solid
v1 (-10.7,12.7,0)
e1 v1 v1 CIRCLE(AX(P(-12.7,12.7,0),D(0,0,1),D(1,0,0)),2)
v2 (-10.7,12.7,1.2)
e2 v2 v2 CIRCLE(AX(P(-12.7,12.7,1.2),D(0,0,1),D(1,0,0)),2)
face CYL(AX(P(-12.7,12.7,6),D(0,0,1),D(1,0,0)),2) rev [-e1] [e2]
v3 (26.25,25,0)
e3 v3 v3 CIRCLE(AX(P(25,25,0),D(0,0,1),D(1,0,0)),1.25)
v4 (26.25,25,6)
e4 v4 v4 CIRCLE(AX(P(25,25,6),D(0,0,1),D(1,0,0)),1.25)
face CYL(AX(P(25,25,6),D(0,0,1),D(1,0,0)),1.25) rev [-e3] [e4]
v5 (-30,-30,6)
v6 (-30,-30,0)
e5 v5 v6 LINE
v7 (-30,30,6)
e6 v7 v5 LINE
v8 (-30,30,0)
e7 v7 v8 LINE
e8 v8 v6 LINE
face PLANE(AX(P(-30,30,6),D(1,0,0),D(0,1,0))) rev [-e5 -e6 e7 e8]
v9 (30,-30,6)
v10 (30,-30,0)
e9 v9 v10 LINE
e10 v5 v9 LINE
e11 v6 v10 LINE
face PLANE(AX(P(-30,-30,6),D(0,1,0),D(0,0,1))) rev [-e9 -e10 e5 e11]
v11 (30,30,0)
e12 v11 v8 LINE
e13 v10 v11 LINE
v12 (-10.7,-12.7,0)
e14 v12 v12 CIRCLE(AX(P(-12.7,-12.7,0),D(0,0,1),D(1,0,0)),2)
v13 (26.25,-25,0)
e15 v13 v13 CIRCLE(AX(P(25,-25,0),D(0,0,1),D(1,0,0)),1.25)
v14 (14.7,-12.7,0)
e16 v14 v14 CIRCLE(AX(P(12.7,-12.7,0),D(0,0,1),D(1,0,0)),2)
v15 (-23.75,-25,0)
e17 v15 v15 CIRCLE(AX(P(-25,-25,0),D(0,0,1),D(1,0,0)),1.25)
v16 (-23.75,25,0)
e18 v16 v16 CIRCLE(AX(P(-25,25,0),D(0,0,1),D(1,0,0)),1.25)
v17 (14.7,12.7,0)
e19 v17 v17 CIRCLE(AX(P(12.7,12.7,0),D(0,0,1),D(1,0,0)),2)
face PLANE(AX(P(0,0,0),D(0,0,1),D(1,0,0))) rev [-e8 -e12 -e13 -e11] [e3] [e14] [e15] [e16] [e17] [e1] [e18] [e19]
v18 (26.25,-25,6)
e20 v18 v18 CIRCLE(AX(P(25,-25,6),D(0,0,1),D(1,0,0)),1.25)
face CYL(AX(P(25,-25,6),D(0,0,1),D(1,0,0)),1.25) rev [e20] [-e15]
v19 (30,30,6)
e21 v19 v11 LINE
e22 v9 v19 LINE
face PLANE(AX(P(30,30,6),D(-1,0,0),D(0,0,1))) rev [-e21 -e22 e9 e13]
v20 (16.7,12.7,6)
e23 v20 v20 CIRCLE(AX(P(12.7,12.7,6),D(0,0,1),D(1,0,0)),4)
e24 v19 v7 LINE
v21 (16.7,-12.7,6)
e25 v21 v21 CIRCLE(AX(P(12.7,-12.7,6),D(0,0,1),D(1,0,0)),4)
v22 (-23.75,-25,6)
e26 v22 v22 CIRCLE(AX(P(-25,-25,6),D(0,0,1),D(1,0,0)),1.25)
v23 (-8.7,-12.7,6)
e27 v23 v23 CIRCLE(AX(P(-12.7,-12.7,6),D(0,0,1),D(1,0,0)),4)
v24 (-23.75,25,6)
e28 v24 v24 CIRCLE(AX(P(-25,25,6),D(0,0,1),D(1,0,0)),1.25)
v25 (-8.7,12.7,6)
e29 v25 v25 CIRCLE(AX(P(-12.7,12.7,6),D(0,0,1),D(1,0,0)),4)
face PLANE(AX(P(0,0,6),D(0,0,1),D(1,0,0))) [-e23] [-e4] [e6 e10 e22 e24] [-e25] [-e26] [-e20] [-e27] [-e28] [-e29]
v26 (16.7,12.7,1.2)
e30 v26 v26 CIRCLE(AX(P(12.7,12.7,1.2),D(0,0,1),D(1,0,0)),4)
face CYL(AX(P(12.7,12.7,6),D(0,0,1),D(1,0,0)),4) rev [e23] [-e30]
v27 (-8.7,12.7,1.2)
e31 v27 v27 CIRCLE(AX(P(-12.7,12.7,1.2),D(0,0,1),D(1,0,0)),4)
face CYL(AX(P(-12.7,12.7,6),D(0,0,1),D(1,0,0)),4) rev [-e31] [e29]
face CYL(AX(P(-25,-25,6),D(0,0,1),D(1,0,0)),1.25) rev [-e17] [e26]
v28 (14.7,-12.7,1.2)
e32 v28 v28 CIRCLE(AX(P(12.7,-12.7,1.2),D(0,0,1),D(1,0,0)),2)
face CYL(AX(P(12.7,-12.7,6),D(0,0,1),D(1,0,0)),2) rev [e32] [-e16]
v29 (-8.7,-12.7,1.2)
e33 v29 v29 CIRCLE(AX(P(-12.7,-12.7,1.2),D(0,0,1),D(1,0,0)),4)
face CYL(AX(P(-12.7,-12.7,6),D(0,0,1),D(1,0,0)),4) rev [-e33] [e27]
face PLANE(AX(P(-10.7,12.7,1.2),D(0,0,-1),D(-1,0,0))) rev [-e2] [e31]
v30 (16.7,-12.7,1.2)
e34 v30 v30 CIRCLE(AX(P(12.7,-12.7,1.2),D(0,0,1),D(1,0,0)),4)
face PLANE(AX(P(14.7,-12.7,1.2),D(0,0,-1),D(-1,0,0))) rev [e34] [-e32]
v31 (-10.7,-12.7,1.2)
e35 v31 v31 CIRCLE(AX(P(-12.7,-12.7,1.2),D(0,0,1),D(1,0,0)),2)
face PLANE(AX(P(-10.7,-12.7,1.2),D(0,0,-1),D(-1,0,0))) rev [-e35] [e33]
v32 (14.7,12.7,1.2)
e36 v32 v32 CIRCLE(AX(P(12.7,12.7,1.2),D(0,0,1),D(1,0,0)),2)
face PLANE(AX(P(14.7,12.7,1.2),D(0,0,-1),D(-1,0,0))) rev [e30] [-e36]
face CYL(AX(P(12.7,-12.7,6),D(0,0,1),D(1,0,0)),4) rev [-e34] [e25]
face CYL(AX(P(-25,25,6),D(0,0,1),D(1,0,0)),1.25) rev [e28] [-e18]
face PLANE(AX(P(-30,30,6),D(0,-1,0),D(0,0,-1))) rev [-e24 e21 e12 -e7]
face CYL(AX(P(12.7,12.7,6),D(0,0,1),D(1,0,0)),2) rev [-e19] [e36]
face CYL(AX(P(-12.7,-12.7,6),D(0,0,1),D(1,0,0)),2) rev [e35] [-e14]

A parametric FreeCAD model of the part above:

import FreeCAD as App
import Part
import Sketcher

V = App.Vector

doc = App.newDocument("Part")
params = doc.addObject("Spreadsheet::Sheet", "Params")
for row, (alias, value) in enumerate([
    ("sketch1_width", "60 mm"),
    ("pad1_length", "6 mm"),
    ("sketch2_diameter", "2.5 mm"),
    ("hole_diameter", "2.5 mm"),
    ("sketch3_diameter", "4 mm"),
    ("hole2_diameter", "4 mm"),
    ("hole2_cbore_diameter", "8 mm"),
    ("hole2_cbore_depth", "4.8 mm"),
], start=1):
    params.set(f"A{row}", alias)
    params.set(f"B{row}", "=" + value)
    params.setAlias(f"B{row}", alias)

body = doc.addObject("PartDesign::Body", "Body")

# Sketch on XY plane
sketch1 = body.newObject("Sketcher::SketchObject", "Sketch")
sketch1.AttachmentSupport = (doc.getObject("XY_Plane"), [""])
sketch1.MapMode = "FlatFace"
sketch1.addGeometry([
    Part.LineSegment(V(-30, 30, 0), V(-30, -30, 0)),
    Part.LineSegment(V(-30, -30, 0), V(30, -30, 0)),
    Part.LineSegment(V(30, -30, 0), V(30, 30, 0)),
    Part.LineSegment(V(30, 30, 0), V(-30, 30, 0)),
], False)
sketch1.addConstraint([
    Sketcher.Constraint("Coincident", 0, 2, 1, 1),
    Sketcher.Constraint("Coincident", 1, 2, 2, 1),
    Sketcher.Constraint("Coincident", 2, 2, 3, 1),
    Sketcher.Constraint("Coincident", 3, 2, 0, 1),
    Sketcher.Constraint("Vertical", 0),
    Sketcher.Constraint("Horizontal", 1),
    Sketcher.Constraint("Vertical", 2),
    Sketcher.Constraint("Horizontal", 3),
    Sketcher.Constraint("Symmetric", 0, 2, 2, 2, -1, 1),
    Sketcher.Constraint("Equal", 3, 0),
    Sketcher.Constraint("DistanceX", 1, 1, 1, 2, 60.0),
])
sketch1.setExpression("Constraints[10]", "Params.sketch1_width")
pad1 = body.newObject("PartDesign::Pad", "Pad")
pad1.Profile = sketch1
pad1.setExpression("Length", "Params.pad1_length")

# Sketch on XY plane
sketch2 = body.newObject("Sketcher::SketchObject", "Sketch001")
sketch2.AttachmentSupport = (doc.getObject("XY_Plane"), [""])
sketch2.MapMode = "FlatFace"
sketch2.AttachmentOffset = App.Placement(V(0, 0, 6), App.Rotation())
sketch2.addGeometry([
    Part.Circle(V(-25, 25, 0), V(0, 0, 1), 1.2),
    Part.Circle(V(25, 25, 0), V(0, 0, 1), 1.2),
    Part.Circle(V(25, -25, 0), V(0, 0, 1), 1.2),
    Part.Circle(V(-25, -25, 0), V(0, 0, 1), 1.2),
], False)
sketch2.addConstraint([
    Sketcher.Constraint("Equal", 0, 1),
    Sketcher.Constraint("Equal", 1, 2),
    Sketcher.Constraint("Equal", 2, 3),
    Sketcher.Constraint("Symmetric", 0, 3, 2, 3, -1, 1),
    Sketcher.Constraint("Symmetric", 1, 3, 3, 3, -1, 1),
    Sketcher.Constraint("Symmetric", 0, 3, 1, 3, -2),
    Sketcher.Constraint("Diameter", 0, 2.5),
    Sketcher.Constraint("DistanceX", 0, 3, -1, 1, 25.0),
    Sketcher.Constraint("DistanceY", -1, 1, 0, 3, 25.0),
])
sketch2.setExpression("Constraints[6]", "Params.sketch2_diameter")
doc.recompute()
hole = body.newObject("PartDesign::Hole", "Hole")
hole.Profile = sketch2
hole.ThreadType = "None"
hole.setExpression("Diameter", "Params.hole_diameter")
hole.DepthType = "ThroughAll"

# Sketch on XY plane
sketch3 = body.newObject("Sketcher::SketchObject", "Sketch002")
sketch3.AttachmentSupport = (doc.getObject("XY_Plane"), [""])
sketch3.MapMode = "FlatFace"
sketch3.AttachmentOffset = App.Placement(V(0, 0, 6), App.Rotation())
sketch3.addGeometry([
    Part.Circle(V(-12.7, 12.7, 0), V(0, 0, 1), 2),
    Part.Circle(V(12.7, 12.7, 0), V(0, 0, 1), 2),
    Part.Circle(V(12.7, -12.7, 0), V(0, 0, 1), 2),
    Part.Circle(V(-12.7, -12.7, 0), V(0, 0, 1), 2),
], False)
sketch3.addConstraint([
    Sketcher.Constraint("Equal", 0, 1),
    Sketcher.Constraint("Equal", 1, 2),
    Sketcher.Constraint("Equal", 2, 3),
    Sketcher.Constraint("Symmetric", 0, 3, 2, 3, -1, 1),
    Sketcher.Constraint("Symmetric", 1, 3, 3, 3, -1, 1),
    Sketcher.Constraint("Symmetric", 0, 3, 1, 3, -2),
    Sketcher.Constraint("Diameter", 0, 4.0),
    Sketcher.Constraint("DistanceX", 0, 3, -1, 1, 12.7),
    Sketcher.Constraint("DistanceY", -1, 1, 0, 3, 12.7),
])
sketch3.setExpression("Constraints[6]", "Params.sketch3_diameter")
doc.recompute()
hole2 = body.newObject("PartDesign::Hole", "Hole001")
hole2.Profile = sketch3
hole2.ThreadType = "None"
hole2.setExpression("Diameter", "Params.hole2_diameter")
hole2.DepthType = "ThroughAll"
hole2.HoleCutType = "Counterbore"
hole2.setExpression("HoleCutDiameter", "Params.hole2_cbore_diameter")
hole2.setExpression("HoleCutDepth", "Params.hole2_cbore_depth")

doc.recompute()
